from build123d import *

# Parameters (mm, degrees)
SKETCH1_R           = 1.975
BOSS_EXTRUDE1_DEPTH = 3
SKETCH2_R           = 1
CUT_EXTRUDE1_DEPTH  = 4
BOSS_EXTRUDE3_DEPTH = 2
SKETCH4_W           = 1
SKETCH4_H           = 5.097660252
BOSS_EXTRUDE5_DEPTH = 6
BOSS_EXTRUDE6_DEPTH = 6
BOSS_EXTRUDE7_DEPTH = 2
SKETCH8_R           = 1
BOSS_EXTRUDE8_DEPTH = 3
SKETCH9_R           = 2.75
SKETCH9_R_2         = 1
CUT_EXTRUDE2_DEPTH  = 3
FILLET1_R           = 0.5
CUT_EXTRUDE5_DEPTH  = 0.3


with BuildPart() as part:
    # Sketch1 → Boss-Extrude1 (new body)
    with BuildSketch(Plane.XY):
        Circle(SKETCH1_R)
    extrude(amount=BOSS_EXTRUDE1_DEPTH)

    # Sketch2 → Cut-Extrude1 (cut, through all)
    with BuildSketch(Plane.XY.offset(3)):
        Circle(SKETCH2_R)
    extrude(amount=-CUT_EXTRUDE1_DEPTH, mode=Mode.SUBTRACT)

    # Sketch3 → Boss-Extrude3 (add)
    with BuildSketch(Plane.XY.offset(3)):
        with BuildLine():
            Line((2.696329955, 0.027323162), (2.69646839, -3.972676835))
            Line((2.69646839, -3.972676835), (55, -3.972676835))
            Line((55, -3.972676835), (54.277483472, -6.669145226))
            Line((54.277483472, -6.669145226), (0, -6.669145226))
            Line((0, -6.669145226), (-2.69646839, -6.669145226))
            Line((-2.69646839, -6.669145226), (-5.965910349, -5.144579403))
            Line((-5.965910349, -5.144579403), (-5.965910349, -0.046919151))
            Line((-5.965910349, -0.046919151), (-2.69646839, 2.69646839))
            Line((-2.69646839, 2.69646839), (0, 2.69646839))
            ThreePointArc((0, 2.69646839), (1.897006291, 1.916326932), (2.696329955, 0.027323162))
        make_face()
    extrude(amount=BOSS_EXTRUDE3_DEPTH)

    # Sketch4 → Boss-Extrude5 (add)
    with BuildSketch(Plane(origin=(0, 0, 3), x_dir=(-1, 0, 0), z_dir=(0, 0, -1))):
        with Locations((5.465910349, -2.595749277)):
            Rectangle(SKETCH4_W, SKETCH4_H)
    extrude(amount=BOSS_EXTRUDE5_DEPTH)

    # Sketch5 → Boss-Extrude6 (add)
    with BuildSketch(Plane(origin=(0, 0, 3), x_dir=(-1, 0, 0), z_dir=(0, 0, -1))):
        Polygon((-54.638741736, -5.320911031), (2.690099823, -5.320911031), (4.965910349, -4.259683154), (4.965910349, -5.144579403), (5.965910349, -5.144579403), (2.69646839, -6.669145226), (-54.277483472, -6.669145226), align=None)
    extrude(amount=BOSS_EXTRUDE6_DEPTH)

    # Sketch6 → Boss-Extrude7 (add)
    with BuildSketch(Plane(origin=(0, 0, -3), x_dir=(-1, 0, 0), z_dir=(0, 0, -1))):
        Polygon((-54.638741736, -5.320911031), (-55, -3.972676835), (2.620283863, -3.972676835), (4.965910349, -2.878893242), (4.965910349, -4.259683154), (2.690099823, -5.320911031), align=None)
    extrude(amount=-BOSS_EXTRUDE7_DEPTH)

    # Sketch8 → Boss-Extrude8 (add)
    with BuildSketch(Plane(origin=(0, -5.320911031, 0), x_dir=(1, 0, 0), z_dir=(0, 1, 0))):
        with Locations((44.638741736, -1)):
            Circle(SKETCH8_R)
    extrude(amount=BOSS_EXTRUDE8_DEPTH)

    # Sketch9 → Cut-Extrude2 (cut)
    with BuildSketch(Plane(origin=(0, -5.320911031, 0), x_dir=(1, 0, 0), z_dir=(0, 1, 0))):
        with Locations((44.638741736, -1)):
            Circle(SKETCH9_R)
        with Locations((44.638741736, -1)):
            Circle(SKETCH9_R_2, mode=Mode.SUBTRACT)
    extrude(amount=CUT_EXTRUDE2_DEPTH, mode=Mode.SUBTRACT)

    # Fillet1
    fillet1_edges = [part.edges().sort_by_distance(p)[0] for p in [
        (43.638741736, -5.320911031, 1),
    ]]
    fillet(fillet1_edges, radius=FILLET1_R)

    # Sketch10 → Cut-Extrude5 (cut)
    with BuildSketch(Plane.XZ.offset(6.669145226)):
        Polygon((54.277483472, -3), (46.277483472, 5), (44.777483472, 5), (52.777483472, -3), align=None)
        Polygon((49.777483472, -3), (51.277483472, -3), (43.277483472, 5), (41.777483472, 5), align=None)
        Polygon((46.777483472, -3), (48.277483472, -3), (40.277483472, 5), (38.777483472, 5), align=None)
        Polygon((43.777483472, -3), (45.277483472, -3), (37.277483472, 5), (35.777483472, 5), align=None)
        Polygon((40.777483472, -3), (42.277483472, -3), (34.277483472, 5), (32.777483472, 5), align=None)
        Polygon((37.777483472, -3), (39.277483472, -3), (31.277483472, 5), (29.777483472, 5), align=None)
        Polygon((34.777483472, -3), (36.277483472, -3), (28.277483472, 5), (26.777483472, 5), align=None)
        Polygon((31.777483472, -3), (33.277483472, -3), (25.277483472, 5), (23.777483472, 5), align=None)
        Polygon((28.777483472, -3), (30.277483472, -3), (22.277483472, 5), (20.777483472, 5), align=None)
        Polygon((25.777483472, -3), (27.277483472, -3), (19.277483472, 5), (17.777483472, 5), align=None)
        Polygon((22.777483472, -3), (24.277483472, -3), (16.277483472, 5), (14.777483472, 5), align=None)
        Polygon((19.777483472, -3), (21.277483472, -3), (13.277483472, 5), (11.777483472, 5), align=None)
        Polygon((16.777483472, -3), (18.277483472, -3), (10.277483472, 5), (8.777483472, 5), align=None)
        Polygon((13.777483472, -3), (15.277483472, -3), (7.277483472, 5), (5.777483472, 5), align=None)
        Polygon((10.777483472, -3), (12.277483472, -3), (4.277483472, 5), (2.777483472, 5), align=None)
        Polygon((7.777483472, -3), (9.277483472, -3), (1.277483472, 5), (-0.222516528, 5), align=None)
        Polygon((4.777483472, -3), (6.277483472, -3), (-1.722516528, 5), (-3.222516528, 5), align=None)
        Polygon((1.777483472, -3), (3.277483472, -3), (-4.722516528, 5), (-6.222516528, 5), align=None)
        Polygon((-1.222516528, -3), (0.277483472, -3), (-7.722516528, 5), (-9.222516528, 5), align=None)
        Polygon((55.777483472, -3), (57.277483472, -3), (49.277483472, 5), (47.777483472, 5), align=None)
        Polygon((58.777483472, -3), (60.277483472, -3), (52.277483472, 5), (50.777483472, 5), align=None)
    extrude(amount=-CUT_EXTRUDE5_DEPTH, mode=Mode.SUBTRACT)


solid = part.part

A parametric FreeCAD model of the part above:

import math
import FreeCAD as App
import Part
import Sketcher

V = App.Vector
Q = App.Units.Quantity


def edges_at(feature, points):
    """Names of the edges that pass closest to the given points."""
    edges = feature.Shape.Edges
    near = lambda p: min(range(len(edges)), key=lambda i: edges[i].distToShape(Part.Vertex(*p))[0])
    return sorted({f"Edge{near(p) + 1}" for p in points})


def add_polygon(sketch, points):
    """Adds a closed chain of lines whose ends are joined by coincident constraints."""
    first, n = sketch.GeometryCount, len(points)
    for a, b in zip(points, points[1:] + points[:1]):
        sketch.addGeometry(Part.LineSegment(App.Vector(*a, 0), App.Vector(*b, 0)), False)
    for i in range(n):
        sketch.addConstraint(Sketcher.Constraint("Coincident", first + i, 2, first + (i + 1) % n, 1))

doc = App.newDocument("Part")
params = doc.addObject("Spreadsheet::Sheet", "Params")
for row, (alias, value) in enumerate([
    ("sketch1_diameter", "3.95 mm"),
    ("pad1_length", "3 mm"),
    ("sketch2_diameter", "2 mm"),
    ("sketch3_length", "4 mm"),
    ("pad2_length", "2 mm"),
    ("sketch4_width", "1 mm"),
    ("pad3_length", "6 mm"),
    ("sketch5_width", "1 mm"),
    ("pad4_length", "6 mm"),
    ("pad5_length", "2 mm"),
    ("sketch7_diameter", "2 mm"),
    ("pad6_length", "3 mm"),
    ("sketch8_diameter", "2 mm"),
    ("sketch8_diameter2", "5.5 mm"),
    ("pocket2_length", "3 mm"),
    ("fillet_radius", "0.5 mm"),
    ("sketch9_width", "1.5 mm"),
    ("pocket3_length", "0.3 mm"),
], start=1):
    params.set(f"A{row}", alias)
    params.set(f"B{row}", "=" + value)
    params.setAlias(f"B{row}", alias)

body = doc.addObject("PartDesign::Body", "Body")

# Sketch on XY plane
sketch1 = doc.addObject("Sketcher::SketchObject", "Sketch")
body.addObject(sketch1)
sketch1.AttachmentSupport = (doc.XY_Plane, [""])
sketch1.MapMode = "FlatFace"
sketch1.addGeometry(Part.Circle(V(0, 0, 0), V(0, 0, 1), 1.975), False)
sketch1.addConstraint([
    Sketcher.Constraint("Coincident", 0, 3, -1, 1),
    Sketcher.Constraint("Diameter", 0, Q("3.95 mm")),
])
sketch1.setExpression("Constraints[1]", "Params.sketch1_diameter")
pad1 = doc.addObject("PartDesign::Pad", "Pad")
body.addObject(pad1)
pad1.Profile = sketch1
pad1.setExpression("Length", "Params.pad1_length")

# Sketch on XY plane
sketch2 = doc.addObject("Sketcher::SketchObject", "Sketch001")
body.addObject(sketch2)
sketch2.AttachmentSupport = (doc.XY_Plane, [""])
sketch2.MapMode = "FlatFace"
sketch2.AttachmentOffset = App.Placement(V(0, 0, 3), App.Rotation())
sketch2.addGeometry(Part.Circle(V(0, 0, 0), V(0, 0, 1), 1), False)
sketch2.addConstraint([
    Sketcher.Constraint("Coincident", 0, 3, -1, 1),
    Sketcher.Constraint("Diameter", 0, Q("2 mm")),
])
sketch2.setExpression("Constraints[1]", "Params.sketch2_diameter")
pocket1 = doc.addObject("PartDesign::Pocket", "Pocket")
body.addObject(pocket1)
pocket1.Profile = sketch2
pocket1.Type = "ThroughAll"

# Sketch on XY plane
sketch3 = doc.addObject("Sketcher::SketchObject", "Sketch002")
body.addObject(sketch3)
sketch3.AttachmentSupport = (doc.XY_Plane, [""])
sketch3.MapMode = "FlatFace"
sketch3.AttachmentOffset = App.Placement(V(0, 0, 3), App.Rotation())
sketch3.addGeometry([
    Part.LineSegment(V(2.696468, -3.972677, 0), V(2.69633, 0.027323, 0)),  # 0
    Part.ArcOfCircle(Part.Circle(V(0, 0, 0), V(0, 0, 1), 2.696468), math.radians(0.580585), math.radians(90)),  # 1
    Part.LineSegment(V(0, 2.696468, 0), V(-2.696468, 2.696468, 0)),  # 2
    Part.LineSegment(V(-2.696468, 2.696468, 0), V(-5.96591, -0.046919, 0)),  # 3
    Part.LineSegment(V(-5.96591, -0.046919, 0), V(-5.96591, -5.144579, 0)),  # 4
    Part.LineSegment(V(-5.96591, -5.144579, 0), V(-2.696468, -6.669145, 0)),  # 5
    Part.LineSegment(V(-2.696468, -6.669145, 0), V(54.277483, -6.669145, 0)),  # 6
    Part.LineSegment(V(54.277483, -6.669145, 0), V(55, -3.972677, 0)),  # 7
    Part.LineSegment(V(55, -3.972677, 0), V(2.696468, -3.972677, 0)),  # 8
], False)
sketch3.addConstraint([
    Sketcher.Constraint("Coincident", 0, 2, 1, 1),
    Sketcher.Constraint("Tangent", 1, 2, 2, 1),
    Sketcher.Constraint("Coincident", 2, 2, 3, 1),
    Sketcher.Constraint("Coincident", 3, 2, 4, 1),
    Sketcher.Constraint("Coincident", 4, 2, 5, 1),
    Sketcher.Constraint("Coincident", 5, 2, 6, 1),
    Sketcher.Constraint("Coincident", 6, 2, 7, 1),
    Sketcher.Constraint("Coincident", 7, 2, 8, 1),
    Sketcher.Constraint("Coincident", 8, 2, 0, 1),
    Sketcher.Constraint("Horizontal", 2),
    Sketcher.Constraint("Vertical", 4),
    Sketcher.Constraint("Horizontal", 6),
    Sketcher.Constraint("Horizontal", 8),
    Sketcher.Constraint("Coincident", 1, 3, -1, 1),
    Sketcher.Constraint("Vertical", 2, 2, 5, 2),
    Sketcher.Constraint("Angle", 3, Q("-140 deg")),
    Sketcher.Constraint("Angle", 5, Q("-25 deg")),
    Sketcher.Constraint("Angle", 7, Q("75 deg")),
    Sketcher.Constraint("Distance", 0, Q("4 mm")),
    Sketcher.Constraint("DistanceX", -1, 1, 7, 2, Q("55 mm")),
    Sketcher.Constraint("Radius", 1, Q("2.696468 mm")),
    Sketcher.Constraint("DistanceX", 2, 2, 2, 1, Q("2.696468 mm")),
    Sketcher.Constraint("DistanceX", 6, 1, 6, 2, Q("56.973952 mm")),
    Sketcher.Constraint("DistanceX", 8, 2, 8, 1, Q("52.303532 mm")),
    Sketcher.Constraint("DistanceY", 4, 2, 4, 1, Q("5.09766 mm")),
    Sketcher.Constraint("Distance", 5, Q("3.60743 mm")),
])
sketch3.setExpression("Constraints[18]", "Params.sketch3_length")
pad2 = doc.addObject("PartDesign::Pad", "Pad001")
body.addObject(pad2)
pad2.Profile = sketch3
pad2.setExpression("Length", "Params.pad2_length")

# Sketch on XY plane
sketch4 = doc.addObject("Sketcher::SketchObject", "Sketch003")
body.addObject(sketch4)
sketch4.AttachmentSupport = (doc.XY_Plane, [""])
sketch4.MapMode = "FlatFace"
sketch4.AttachmentOffset = App.Placement(V(0, 0, 3), App.Rotation())
add_polygon(sketch4, [(-4.96591, -0.046919), (-4.96591, -5.144579), (-5.96591, -5.144579), (-5.96591, -0.046919)])  # lines 0-3
sketch4.addConstraint([
    Sketcher.Constraint("Vertical", 0),
    Sketcher.Constraint("Horizontal", 1),
    Sketcher.Constraint("Vertical", 2),
    Sketcher.Constraint("Horizontal", 3),
    Sketcher.Constraint("DistanceX", 1, 2, 1, 1, Q("1 mm")),
    Sketcher.Constraint("DistanceY", 0, 2, 0, 1, Q("5.09766 mm")),
    Sketcher.Constraint("DistanceX", 0, 2, -1, 1, Q("4.96591 mm")),
    Sketcher.Constraint("DistanceY", 0, 2, -1, 1, Q("5.144579 mm")),
])
sketch4.setExpression("Constraints[8]", "Params.sketch4_width")
pad3 = doc.addObject("PartDesign::Pad", "Pad002")
body.addObject(pad3)
pad3.Profile = sketch4
pad3.setExpression("Length", "Params.pad3_length")
pad3.Reversed = True

# Sketch on XY plane
sketch5 = doc.addObject("Sketcher::SketchObject", "Sketch004")
body.addObject(sketch5)
sketch5.AttachmentSupport = (doc.XY_Plane, [""])
sketch5.MapMode = "FlatFace"
sketch5.AttachmentOffset = App.Placement(V(0, 0, 3), App.Rotation())
add_polygon(sketch5, [(-2.6901, -5.320911), (54.638742, -5.320911), (54.277483, -6.669145), (-2.696468, -6.669145), (-5.96591, -5.144579), (-4.96591, -5.144579), (-4.96591, -4.259683)])  # lines 0-6
sketch5.addConstraint([
    Sketcher.Constraint("Horizontal", 0),
    Sketcher.Constraint("Horizontal", 2),
    Sketcher.Constraint("Horizontal", 4),
    Sketcher.Constraint("Vertical", 5),
    Sketcher.Constraint("Parallel", 3, 6),
    Sketcher.Constraint("DistanceX", 4, 1, 4, 2, Q("1 mm")),
    Sketcher.Constraint("Angle", 1, Q("-105 deg")),
    Sketcher.Constraint("Angle", 3, Q("155 deg")),
    Sketcher.Constraint("DistanceX", 0, 1, 0, 2, Q("57.328842 mm")),
    Sketcher.Constraint("DistanceX", 2, 2, 2, 1, Q("56.973952 mm")),
    Sketcher.Constraint("DistanceX", 6, 2, -1, 1, Q("2.6901 mm")),
    Sketcher.Constraint("Distance", 3, Q("3.60743 mm")),
    Sketcher.Constraint("Distance", 6, Q("2.511079 mm")),
    Sketcher.Constraint("DistanceY", 0, 2, -1, 1, Q("5.320911 mm")),
])
sketch5.setExpression("Constraints[12]", "Params.sketch5_width")
pad4 = doc.addObject("PartDesign::Pad", "Pad003")
body.addObject(pad4)
pad4.Profile = sketch5
pad4.setExpression("Length", "Params.pad4_length")
pad4.Reversed = True

# Sketch on XY plane
sketch6 = doc.addObject("Sketcher::SketchObject", "Sketch005")
body.addObject(sketch6)
sketch6.AttachmentSupport = (doc.XY_Plane, [""])
sketch6.MapMode = "FlatFace"
sketch6.AttachmentOffset = App.Placement(V(0, 0, -3), App.Rotation())
add_polygon(sketch6, [(55, -3.972677), (54.638742, -5.320911), (-2.6901, -5.320911), (-4.96591, -4.259683), (-4.96591, -2.878893), (-2.620284, -3.972677)])  # lines 0-5
sketch6.addConstraint([
    Sketcher.Constraint("Horizontal", 1),
    Sketcher.Constraint("Vertical", 3),
    Sketcher.Constraint("Horizontal", 5),
    Sketcher.Constraint("Parallel", 2, 4),
    Sketcher.Constraint("Angle", 0, Q("-105 deg")),
    Sketcher.Constraint("Angle", 2, Q("155 deg")),
    Sketcher.Constraint("DistanceX", -1, 1, 5, 2, Q("55 mm")),
    Sketcher.Constraint("DistanceX", 1, 2, 1, 1, Q("57.328842 mm")),
    Sketcher.Constraint("DistanceY", 3, 1, 3, 2, Q("1.38079 mm")),
    Sketcher.Constraint("DistanceX", 1, 2, -1, 1, Q("2.6901 mm")),
    Sketcher.Constraint("Distance", 2, Q("2.511079 mm")),
    Sketcher.Constraint("DistanceY", 0, 2, -1, 1, Q("5.320911 mm")),
])
pad5 = doc.addObject("PartDesign::Pad", "Pad004")
body.addObject(pad5)
pad5.Profile = sketch6
pad5.setExpression("Length", "Params.pad5_length")

# Sketch on XZ plane
sketch7 = doc.addObject("Sketcher::SketchObject", "Sketch006")
body.addObject(sketch7)
sketch7.AttachmentSupport = (doc.XZ_Plane, [""])
sketch7.MapMode = "FlatFace"
sketch7.AttachmentOffset = App.Placement(V(0, 0, 5.320911), App.Rotation())
sketch7.addGeometry(Part.Circle(V(44.638742, 1, 0), V(0, 0, 1), 1), False)
sketch7.addConstraint([
    Sketcher.Constraint("Diameter", 0, Q("2 mm")),
    Sketcher.Constraint("DistanceY", -1, 1, 0, 3, Q("1 mm")),
    Sketcher.Constraint("DistanceX", -1, 1, 0, 3, Q("44.638742 mm")),
])
sketch7.setExpression("Constraints[0]", "Params.sketch7_diameter")
pad6 = doc.addObject("PartDesign::Pad", "Pad005")
body.addObject(pad6)
pad6.Profile = sketch7
pad6.setExpression("Length", "Params.pad6_length")
pad6.Reversed = True

# Sketch on XZ plane
sketch8 = doc.addObject("Sketcher::SketchObject", "Sketch007")
body.addObject(sketch8)
sketch8.AttachmentSupport = (doc.XZ_Plane, [""])
sketch8.MapMode = "FlatFace"
sketch8.AttachmentOffset = App.Placement(V(0, 0, 5.320911), App.Rotation())
sketch8.addGeometry([
    Part.Circle(V(44.638742, 1, 0), V(0, 0, 1), 2.75),
    Part.Circle(V(44.638742, 1, 0), V(0, 0, 1), 1),
], False)
sketch8.addConstraint([
    Sketcher.Constraint("Coincident", 1, 3, 0, 3),
    Sketcher.Constraint("Diameter", 1, Q("2 mm")),
    Sketcher.Constraint("Diameter", 0, Q("5.5 mm")),
    Sketcher.Constraint("DistanceY", -1, 1, 0, 3, Q("1 mm")),
    Sketcher.Constraint("DistanceX", -1, 1, 0, 3, Q("44.638742 mm")),
])
sketch8.setExpression("Constraints[1]", "Params.sketch8_diameter")
sketch8.setExpression("Constraints[2]", "Params.sketch8_diameter2")
pocket2 = doc.addObject("PartDesign::Pocket", "Pocket001")
body.addObject(pocket2)
pocket2.Profile = sketch8
pocket2.setExpression("Length", "Params.pocket2_length")
doc.recompute()

fillet = doc.addObject("PartDesign::Fillet", "Fillet")
body.addObject(fillet)
fillet.Base = (pocket2, edges_at(pocket2, [(43.639, -5.321, 1)]))
fillet.setExpression("Radius", "Params.fillet_radius")

# Sketch on XZ plane
sketch9 = doc.addObject("Sketcher::SketchObject", "Sketch008")
body.addObject(sketch9)
sketch9.AttachmentSupport = (doc.XZ_Plane, [""])
sketch9.MapMode = "FlatFace"
sketch9.AttachmentOffset = App.Placement(V(0, 0, 6.669145), App.Rotation())
add_polygon(sketch9, [(54.277483, -3), (46.277483, 5), (44.777483, 5), (52.777483, -3)])  # lines 0-3
add_polygon(sketch9, [(49.777483, -3), (51.277483, -3), (43.277483, 5), (41.777483, 5)])  # lines 4-7
add_polygon(sketch9, [(46.777483, -3), (48.277483, -3), (40.277483, 5), (38.777483, 5)])  # lines 8-11
add_polygon(sketch9, [(43.777483, -3), (45.277483, -3), (37.277483, 5), (35.777483, 5)])  # lines 12-15
add_polygon(sketch9, [(40.777483, -3), (42.277483, -3), (34.277483, 5), (32.777483, 5)])  # lines 16-19
add_polygon(sketch9, [(37.777483, -3), (39.277483, -3), (31.277483, 5), (29.777483, 5)])  # lines 20-23
add_polygon(sketch9, [(34.777483, -3), (36.277483, -3), (28.277483, 5), (26.777483, 5)])  # lines 24-27
add_polygon(sketch9, [(31.777483, -3), (33.277483, -3), (25.277483, 5), (23.777483, 5)])  # lines 28-31
add_polygon(sketch9, [(28.777483, -3), (30.277483, -3), (22.277483, 5), (20.777483, 5)])  # lines 32-35
add_polygon(sketch9, [(25.777483, -3), (27.277483, -3), (19.277483, 5), (17.777483, 5)])  # lines 36-39
add_polygon(sketch9, [(22.777483, -3), (24.277483, -3), (16.277483, 5), (14.777483, 5)])  # lines 40-43
add_polygon(sketch9, [(19.777483, -3), (21.277483, -3), (13.277483, 5), (11.777483, 5)])  # lines 44-47
add_polygon(sketch9, [(16.777483, -3), (18.277483, -3), (10.277483, 5), (8.777483, 5)])  # lines 48-51
add_polygon(sketch9, [(13.777483, -3), (15.277483, -3), (7.277483, 5), (5.777483, 5)])  # lines 52-55
add_polygon(sketch9, [(10.777483, -3), (12.277483, -3), (4.277483, 5), (2.777483, 5)])  # lines 56-59
add_polygon(sketch9, [(7.777483, -3), (9.277483, -3), (1.277483, 5), (-0.222517, 5)])  # lines 60-63
add_polygon(sketch9, [(4.777483, -3), (6.277483, -3), (-1.722517, 5), (-3.222517, 5)])  # lines 64-67
add_polygon(sketch9, [(1.777483, -3), (3.277483, -3), (-4.722517, 5), (-6.222517, 5)])  # lines 68-71
add_polygon(sketch9, [(-1.222517, -3), (0.277483, -3), (-7.722517, 5), (-9.222517, 5)])  # lines 72-75
add_polygon(sketch9, [(55.777483, -3), (57.277483, -3), (49.277483, 5), (47.777483, 5)])  # lines 76-79
add_polygon(sketch9, [(58.777483, -3), (60.277483, -3), (52.277483, 5), (50.777483, 5)])  # lines 80-83
sketch9.addConstraint([
    Sketcher.Constraint("Horizontal", 1),
    Sketcher.Constraint("Horizontal", 3),
    Sketcher.Constraint("Horizontal", 4),
    Sketcher.Constraint("Horizontal", 6),
    Sketcher.Constraint("Horizontal", 8),
    Sketcher.Constraint("Horizontal", 10),
    Sketcher.Constraint("Horizontal", 12),
    Sketcher.Constraint("Horizontal", 14),
    Sketcher.Constraint("Horizontal", 16),
    Sketcher.Constraint("Horizontal", 18),
    Sketcher.Constraint("Horizontal", 20),
    Sketcher.Constraint("Horizontal", 22),
    Sketcher.Constraint("Horizontal", 24),
    Sketcher.Constraint("Horizontal", 26),
    Sketcher.Constraint("Horizontal", 28),
    Sketcher.Constraint("Horizontal", 30),
    Sketcher.Constraint("Horizontal", 32),
    Sketcher.Constraint("Horizontal", 34),
    Sketcher.Constraint("Horizontal", 36),
    Sketcher.Constraint("Horizontal", 38),
    Sketcher.Constraint("Horizontal", 40),
    Sketcher.Constraint("Horizontal", 42),
    Sketcher.Constraint("Horizontal", 44),
    Sketcher.Constraint("Horizontal", 46),
    Sketcher.Constraint("Horizontal", 48),
    Sketcher.Constraint("Horizontal", 50),
    Sketcher.Constraint("Horizontal", 52),
    Sketcher.Constraint("Horizontal", 54),
    Sketcher.Constraint("Horizontal", 56),
    Sketcher.Constraint("Horizontal", 58),
    Sketcher.Constraint("Horizontal", 60),
    Sketcher.Constraint("Horizontal", 62),
    Sketcher.Constraint("Horizontal", 64),
    Sketcher.Constraint("Horizontal", 66),
    Sketcher.Constraint("Horizontal", 68),
    Sketcher.Constraint("Horizontal", 70),
    Sketcher.Constraint("Horizontal", 72),
    Sketcher.Constraint("Horizontal", 74),
    Sketcher.Constraint("Horizontal", 76),
    Sketcher.Constraint("Horizontal", 78),
    Sketcher.Constraint("Horizontal", 80),
    Sketcher.Constraint("Horizontal", 82),
    Sketcher.Constraint("Parallel", 0, 2),
    Sketcher.Constraint("Parallel", 2, 5),
    Sketcher.Constraint("Parallel", 5, 7),
    Sketcher.Constraint("Parallel", 7, 9),
    Sketcher.Constraint("Parallel", 9, 11),
    Sketcher.Constraint("Parallel", 11, 13),
    Sketcher.Constraint("Parallel", 13, 15),
    Sketcher.Constraint("Parallel", 15, 17),
    Sketcher.Constraint("Parallel", 17, 19),
    Sketcher.Constraint("Parallel", 19, 21),
    Sketcher.Constraint("Parallel", 21, 23),
    Sketcher.Constraint("Parallel", 23, 25),
    Sketcher.Constraint("Parallel", 25, 27),
    Sketcher.Constraint("Parallel", 27, 29),
    Sketcher.Constraint("Parallel", 29, 31),
    Sketcher.Constraint("Parallel", 31, 33),
    Sketcher.Constraint("Parallel", 33, 35),
    Sketcher.Constraint("Parallel", 35, 37),
    Sketcher.Constraint("Parallel", 37, 39),
    Sketcher.Constraint("Parallel", 39, 41),
    Sketcher.Constraint("Parallel", 41, 43),
    Sketcher.Constraint("Parallel", 43, 45),
    Sketcher.Constraint("Parallel", 45, 47),
    Sketcher.Constraint("Parallel", 47, 49),
    Sketcher.Constraint("Parallel", 49, 51),
    Sketcher.Constraint("Parallel", 51, 53),
    Sketcher.Constraint("Parallel", 53, 55),
    Sketcher.Constraint("Parallel", 55, 57),
    Sketcher.Constraint("Parallel", 57, 59),
    Sketcher.Constraint("Parallel", 59, 61),
    Sketcher.Constraint("Parallel", 61, 63),
    Sketcher.Constraint("Parallel", 63, 65),
    Sketcher.Constraint("Parallel", 65, 67),
    Sketcher.Constraint("Parallel", 67, 69),
    Sketcher.Constraint("Parallel", 69, 71),
    Sketcher.Constraint("Parallel", 71, 73),
    Sketcher.Constraint("Parallel", 73, 75),
    Sketcher.Constraint("Parallel", 75, 77),
    Sketcher.Constraint("Parallel", 77, 79),
    Sketcher.Constraint("Parallel", 79, 81),
    Sketcher.Constraint("Parallel", 81, 83),
    Sketcher.Constraint("Horizontal", 3, 2, 4, 2),
    Sketcher.Constraint("Horizontal", 1, 2, 5, 2),
    Sketcher.Constraint("Horizontal", 7, 2, 8, 2),
    Sketcher.Constraint("Horizontal", 6, 2, 9, 2),
    Sketcher.Constraint("Horizontal", 11, 2, 12, 2),
    Sketcher.Constraint("Horizontal", 10, 2, 13, 2),
    Sketcher.Constraint("Horizontal", 15, 2, 16, 2),
    Sketcher.Constraint("Horizontal", 14, 2, 17, 2),
    Sketcher.Constraint("Horizontal", 19, 2, 20, 2),
    Sketcher.Constraint("Horizontal", 18, 2, 21, 2),
    Sketcher.Constraint("Horizontal", 23, 2, 24, 2),
    Sketcher.Constraint("Horizontal", 22, 2, 25, 2),
    Sketcher.Constraint("Horizontal", 27, 2, 28, 2),
    Sketcher.Constraint("Horizontal", 26, 2, 29, 2),
    Sketcher.Constraint("Horizontal", 31, 2, 32, 2),
    Sketcher.Constraint("Horizontal", 30, 2, 33, 2),
    Sketcher.Constraint("Horizontal", 35, 2, 36, 2),
    Sketcher.Constraint("Horizontal", 34, 2, 37, 2),
    Sketcher.Constraint("Horizontal", 39, 2, 40, 2),
    Sketcher.Constraint("Horizontal", 38, 2, 41, 2),
    Sketcher.Constraint("Horizontal", 43, 2, 44, 2),
    Sketcher.Constraint("Horizontal", 42, 2, 45, 2),
    Sketcher.Constraint("Horizontal", 47, 2, 48, 2),
    Sketcher.Constraint("Horizontal", 46, 2, 49, 2),
    Sketcher.Constraint("Horizontal", 51, 2, 52, 2),
    Sketcher.Constraint("Horizontal", 50, 2, 53, 2),
    Sketcher.Constraint("Horizontal", 55, 2, 56, 2),
    Sketcher.Constraint("Horizontal", 54, 2, 57, 2),
    Sketcher.Constraint("Horizontal", 59, 2, 60, 2),
    Sketcher.Constraint("Horizontal", 58, 2, 61, 2),
    Sketcher.Constraint("Horizontal", 63, 2, 64, 2),
    Sketcher.Constraint("Horizontal", 62, 2, 65, 2),
    Sketcher.Constraint("Horizontal", 67, 2, 68, 2),
    Sketcher.Constraint("Horizontal", 66, 2, 69, 2),
    Sketcher.Constraint("Horizontal", 71, 2, 72, 2),
    Sketcher.Constraint("Horizontal", 70, 2, 73, 2),
    Sketcher.Constraint("Horizontal", 75, 2, 76, 2),
    Sketcher.Constraint("Horizontal", 74, 2, 77, 2),
    Sketcher.Constraint("Horizontal", 79, 2, 80, 2),
    Sketcher.Constraint("Horizontal", 78, 2, 81, 2),
    Sketcher.Constraint("Equal", 3, 4),
    Sketcher.Constraint("Equal", 6, 8),
    Sketcher.Constraint("Equal", 10, 12),
    Sketcher.Constraint("Equal", 14, 16),
    Sketcher.Constraint("Equal", 18, 20),
    Sketcher.Constraint("Equal", 22, 24),
    Sketcher.Constraint("Equal", 26, 28),
    Sketcher.Constraint("Equal", 30, 32),
    Sketcher.Constraint("Equal", 34, 36),
    Sketcher.Constraint("Equal", 38, 40),
    Sketcher.Constraint("Equal", 42, 44),
    Sketcher.Constraint("Equal", 46, 48),
    Sketcher.Constraint("Equal", 50, 52),
    Sketcher.Constraint("Equal", 54, 56),
    Sketcher.Constraint("Equal", 58, 60),
    Sketcher.Constraint("Equal", 62, 64),
    Sketcher.Constraint("Equal", 66, 68),
    Sketcher.Constraint("Equal", 70, 72),
    Sketcher.Constraint("Equal", 74, 76),
    Sketcher.Constraint("Equal", 78, 80),
    Sketcher.Constraint("Angle", 0, Q("135 deg")),
    Sketcher.Constraint("DistanceX", 1, 2, 1, 1, Q("1.5 mm")),
    Sketcher.Constraint("DistanceY", -1, 1, 0, 2, Q("5 mm")),
    Sketcher.Constraint("DistanceY", 2, 2, -1, 1, Q("3 mm")),
    Sketcher.Constraint("DistanceX", -1, 1, 0, 2, Q("46.277483 mm")),
    Sketcher.Constraint("DistanceX", -1, 1, 4, 2, Q("51.277483 mm")),
    Sketcher.Constraint("DistanceX", -1, 1, 8, 2, Q("48.277483 mm")),
    Sketcher.Constraint("DistanceX", -1, 1, 12, 2, Q("45.277483 mm")),
    Sketcher.Constraint("DistanceX", -1, 1, 16, 2, Q("42.277483 mm")),
    Sketcher.Constraint("DistanceX", -1, 1, 20, 2, Q("39.277483 mm")),
    Sketcher.Constraint("DistanceX", -1, 1, 24, 2, Q("36.277483 mm")),
    Sketcher.Constraint("DistanceX", -1, 1, 28, 2, Q("33.277483 mm")),
    Sketcher.Constraint("DistanceX", -1, 1, 32, 2, Q("30.277483 mm")),
    Sketcher.Constraint("DistanceX", -1, 1, 36, 2, Q("27.277483 mm")),
    Sketcher.Constraint("DistanceX", -1, 1, 40, 2, Q("24.277483 mm")),
    Sketcher.Constraint("DistanceX", -1, 1, 44, 2, Q("21.277483 mm")),
    Sketcher.Constraint("DistanceX", -1, 1, 48, 2, Q("18.277483 mm")),
    Sketcher.Constraint("DistanceX", -1, 1, 52, 2, Q("15.277483 mm")),
    Sketcher.Constraint("DistanceX", -1, 1, 56, 2, Q("12.277483 mm")),
    Sketcher.Constraint("DistanceX", -1, 1, 60, 2, Q("9.277483 mm")),
    Sketcher.Constraint("DistanceX", -1, 1, 64, 2, Q("6.277483 mm")),
    Sketcher.Constraint("DistanceX", -1, 1, 68, 2, Q("3.277483 mm")),
    Sketcher.Constraint("DistanceX", -1, 1, 72, 2, Q("0.277483 mm")),
    Sketcher.Constraint("DistanceX", -1, 1, 76, 2, Q("57.277483 mm")),
    Sketcher.Constraint("DistanceX", -1, 1, 80, 2, Q("60.277483 mm")),
])
sketch9.setExpression("Constraints[228]", "Params.sketch9_width")
pocket3 = doc.addObject("PartDesign::Pocket", "Pocket002")
body.addObject(pocket3)
pocket3.Profile = sketch9
pocket3.setExpression("Length", "Params.pocket3_length")

doc.recompute()
